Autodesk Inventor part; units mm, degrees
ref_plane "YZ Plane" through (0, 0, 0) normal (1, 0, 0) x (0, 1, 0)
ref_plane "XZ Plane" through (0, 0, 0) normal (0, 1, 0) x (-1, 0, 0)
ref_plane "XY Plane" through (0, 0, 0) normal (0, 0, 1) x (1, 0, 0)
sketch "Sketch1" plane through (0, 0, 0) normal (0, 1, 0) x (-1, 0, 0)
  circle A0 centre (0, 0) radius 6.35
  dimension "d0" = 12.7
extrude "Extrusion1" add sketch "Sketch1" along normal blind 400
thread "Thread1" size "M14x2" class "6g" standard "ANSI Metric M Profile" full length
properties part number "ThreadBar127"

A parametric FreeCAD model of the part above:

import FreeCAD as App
import Part
import Sketcher
from FreeCAD import Vector

doc = App.newDocument("Part")
params = doc.addObject("Spreadsheet::Sheet", "Params")
for row, (alias, value) in enumerate([
    ("sketch1_diameter", "12.7 mm"),
    ("pad1_length", "400 mm"),
], start=1):
    params.set(f"A{row}", alias)
    params.set(f"B{row}", "=" + value)
    params.setAlias(f"B{row}", alias)

body = doc.addObject("PartDesign::Body", "Body")

sketch1 = body.newObject("Sketcher::SketchObject", "Sketch")
sketch1.AttachmentSupport = (doc.getObject("XZ_Plane"), [""])
sketch1.MapMode = "FlatFace"
sketch1.addGeometry(Part.Circle(Vector(0, 0, 0), Vector(0, 0, 1), 6), False)
sketch1.addConstraint([
    Sketcher.Constraint("Coincident", 0, 3, -1, 1),
    Sketcher.Constraint("Diameter", 0, 12.7),
])
sketch1.setExpression("Constraints[1]", "Params.sketch1_diameter")
pad1 = body.newObject("PartDesign::Pad", "Pad")
pad1.Profile = sketch1
pad1.setExpression("Length", "Params.pad1_length")
pad1.Reversed = True

doc.recompute()
